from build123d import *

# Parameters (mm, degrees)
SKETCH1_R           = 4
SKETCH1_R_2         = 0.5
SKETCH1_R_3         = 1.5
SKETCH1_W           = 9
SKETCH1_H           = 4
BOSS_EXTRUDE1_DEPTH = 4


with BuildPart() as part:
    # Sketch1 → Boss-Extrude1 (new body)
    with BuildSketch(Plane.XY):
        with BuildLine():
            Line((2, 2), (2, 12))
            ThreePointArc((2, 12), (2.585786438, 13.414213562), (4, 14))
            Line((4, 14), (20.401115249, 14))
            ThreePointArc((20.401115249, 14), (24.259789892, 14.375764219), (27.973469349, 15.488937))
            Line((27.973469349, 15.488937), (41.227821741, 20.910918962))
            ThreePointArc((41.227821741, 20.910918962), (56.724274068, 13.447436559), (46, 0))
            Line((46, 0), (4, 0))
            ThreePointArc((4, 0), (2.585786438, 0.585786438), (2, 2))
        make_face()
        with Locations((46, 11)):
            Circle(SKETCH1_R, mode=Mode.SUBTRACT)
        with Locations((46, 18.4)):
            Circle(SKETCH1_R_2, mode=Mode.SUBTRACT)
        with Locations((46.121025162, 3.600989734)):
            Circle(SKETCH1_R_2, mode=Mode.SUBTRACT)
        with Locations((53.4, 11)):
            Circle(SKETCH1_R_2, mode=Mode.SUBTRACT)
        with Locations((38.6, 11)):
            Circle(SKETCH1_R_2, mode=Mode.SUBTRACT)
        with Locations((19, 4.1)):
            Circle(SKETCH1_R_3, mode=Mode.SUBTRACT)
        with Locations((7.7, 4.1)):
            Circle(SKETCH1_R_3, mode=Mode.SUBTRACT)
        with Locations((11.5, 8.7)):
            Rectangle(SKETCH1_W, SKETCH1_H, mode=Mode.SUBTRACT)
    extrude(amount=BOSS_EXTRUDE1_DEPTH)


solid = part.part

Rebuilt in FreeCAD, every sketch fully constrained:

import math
import FreeCAD as App
import Part
import Sketcher
Q = App.Units.Quantity


def add_polygon(sketch, points):
    """Adds a closed chain of lines whose ends are joined by coincident constraints."""
    first, n = sketch.GeometryCount, len(points)
    for a, b in zip(points, points[1:] + points[:1]):
        sketch.addGeometry(Part.LineSegment(App.Vector(*a, 0), App.Vector(*b, 0)), False)
    for i in range(n):
        sketch.addConstraint(Sketcher.Constraint("Coincident", first + i, 2, first + (i + 1) % n, 1))

doc = App.newDocument("Part")
body = doc.addObject("PartDesign::Body", "Body")

# Sketch on XY plane
sketch1 = doc.addObject("Sketcher::SketchObject", "Sketch")
body.addObject(sketch1)
sketch1.AttachmentSupport = (doc.XY_Plane, [""])
sketch1.MapMode = "FlatFace"
sketch1.addGeometry(Part.LineSegment(App.Vector(2, 12, 0), App.Vector(2, 2, 0)), False)  # 0
sketch1.addGeometry(Part.ArcOfCircle(Part.Circle(App.Vector(4, 2, 0), App.Vector(0, 0, 1), 2), math.radians(-180), math.radians(-90)), False)  # 1
sketch1.addGeometry(Part.LineSegment(App.Vector(4, 0, 0), App.Vector(46, 0, 0)), False)  # 2
sketch1.addGeometry(Part.ArcOfCircle(Part.Circle(App.Vector(46, 11, 0), App.Vector(0, 0, 1), 11), math.radians(-90), math.radians(116)), False)  # 3
sketch1.addGeometry(Part.LineSegment(App.Vector(41.2, 20.9, 0), App.Vector(28, 15.5, 0)), False)  # 4
sketch1.addGeometry(Part.ArcOfCircle(Part.Circle(App.Vector(20.4, 34, 0), App.Vector(0, 0, 1), 20), math.radians(-90), math.radians(-68)), False)  # 5
sketch1.addGeometry(Part.LineSegment(App.Vector(20.4, 14, 0), App.Vector(4, 14, 0)), False)  # 6
sketch1.addGeometry(Part.ArcOfCircle(Part.Circle(App.Vector(4, 12, 0), App.Vector(0, 0, 1), 2), math.radians(90), math.radians(180)), False)  # 7
sketch1.addGeometry(Part.Circle(App.Vector(46.1, 3.6, 0), App.Vector(0, 0, 1), 0.5), False)  # 8
sketch1.addGeometry(Part.Circle(App.Vector(19, 4.1, 0), App.Vector(0, 0, 1), 1.5), False)  # 9
sketch1.addGeometry(Part.Circle(App.Vector(7.7, 4.1, 0), App.Vector(0, 0, 1), 1.5), False)  # 10
add_polygon(sketch1, [(7, 6.7), (7, 10.7), (16, 10.7), (16, 6.7)])  # lines 11-14
sketch1.addGeometry(Part.Circle(App.Vector(53.4, 11, 0), App.Vector(0, 0, 1), 0.5), False)  # 15
sketch1.addGeometry(Part.Circle(App.Vector(46, 11, 0), App.Vector(0, 0, 1), 4), False)  # 16
sketch1.addGeometry(Part.Circle(App.Vector(38.6, 11, 0), App.Vector(0, 0, 1), 0.5), False)  # 17
sketch1.addGeometry(Part.Circle(App.Vector(46, 18.4, 0), App.Vector(0, 0, 1), 0.5), False)  # 18
sketch1.addConstraint([
    Sketcher.Constraint("Tangent", 0, 2, 1, 1),
    Sketcher.Constraint("Tangent", 1, 2, 2, 1),
    Sketcher.Constraint("Tangent", 2, 2, 3, 1),
    Sketcher.Constraint("Coincident", 3, 2, 4, 1),
    Sketcher.Constraint("Tangent", 4, 2, 5, 2),
    Sketcher.Constraint("Tangent", 5, 1, 6, 1),
    Sketcher.Constraint("Tangent", 6, 2, 7, 1),
    Sketcher.Constraint("Tangent", 7, 2, 0, 1),
    Sketcher.Constraint("Vertical", 0),
    Sketcher.Constraint("Horizontal", 2),
    Sketcher.Constraint("Horizontal", 6),
    Sketcher.Constraint("Vertical", 11),
    Sketcher.Constraint("Horizontal", 12),
    Sketcher.Constraint("Vertical", 13),
    Sketcher.Constraint("Horizontal", 14),
    Sketcher.Constraint("Coincident", 16, 3, 3, 3),
    Sketcher.Constraint("Equal", 1, 7),
    Sketcher.Constraint("Equal", 9, 10),
    Sketcher.Constraint("Equal", 8, 15),
    Sketcher.Constraint("Equal", 15, 17),
    Sketcher.Constraint("Equal", 17, 18),
    Sketcher.Constraint("PointOnObject", 1, 2, -1),
    Sketcher.Constraint("Horizontal", 9, 3, 10, 3),
    Sketcher.Constraint("Horizontal", 3, 3, 15, 3),
    Sketcher.Constraint("Horizontal", 16, 3, 17, 3),
    Sketcher.Constraint("Vertical", 16, 3, 18, 3),
    Sketcher.Constraint("Diameter", 8, Q("1 mm")),
    Sketcher.Constraint("Diameter", 9, Q("3 mm")),
    Sketcher.Constraint("Diameter", 16, Q("8 mm")),
    Sketcher.Constraint("Radius", 1, Q("2 mm")),
    Sketcher.Constraint("Radius", 3, Q("11 mm")),
    Sketcher.Constraint("Radius", 5, Q("20 mm")),
    Sketcher.Constraint("DistanceX", 2, 1, 2, 2, Q("42 mm")),
    Sketcher.Constraint("DistanceX", 12, 1, 12, 2, Q("9 mm")),
    Sketcher.Constraint("DistanceY", 0, 2, 0, 1, Q("10 mm")),
    Sketcher.Constraint("DistanceY", 11, 1, 11, 2, Q("4 mm")),
    Sketcher.Constraint("DistanceX", -1, 1, 1, 3, Q("4 mm")),
    Sketcher.Constraint("DistanceX", -1, 1, 9, 3, Q("19 mm")),
    Sketcher.Constraint("DistanceX", -1, 1, 11, 2, Q("7 mm")),
    Sketcher.Constraint("DistanceY", -1, 1, 9, 3, Q("4.1 mm")),
    Sketcher.Constraint("DistanceX", -1, 1, 10, 3, Q("7.7 mm")),
    Sketcher.Constraint("DistanceX", -1, 1, 15, 3, Q("53.4 mm")),
    Sketcher.Constraint("DistanceX", -1, 1, 17, 3, Q("38.6 mm")),
    Sketcher.Constraint("DistanceY", -1, 1, 18, 3, Q("18.4 mm")),
    Sketcher.Constraint("DistanceY", -1, 1, 11, 2, Q("10.7 mm")),
    Sketcher.Constraint("DistanceX", 6, 2, 6, 1, Q("16.401115 mm")),
    Sketcher.Constraint("DistanceY", -1, 1, 8, 3, Q("3.60099 mm")),
    Sketcher.Constraint("DistanceX", -1, 1, 3, 2, Q("41.227822 mm")),
    Sketcher.Constraint("DistanceX", 5, 3, 8, 3, Q("25.71991 mm")),
])
pad1 = doc.addObject("PartDesign::Pad", "Pad")
body.addObject(pad1)
pad1.Profile = sketch1
pad1.Length = 4

doc.recompute()
